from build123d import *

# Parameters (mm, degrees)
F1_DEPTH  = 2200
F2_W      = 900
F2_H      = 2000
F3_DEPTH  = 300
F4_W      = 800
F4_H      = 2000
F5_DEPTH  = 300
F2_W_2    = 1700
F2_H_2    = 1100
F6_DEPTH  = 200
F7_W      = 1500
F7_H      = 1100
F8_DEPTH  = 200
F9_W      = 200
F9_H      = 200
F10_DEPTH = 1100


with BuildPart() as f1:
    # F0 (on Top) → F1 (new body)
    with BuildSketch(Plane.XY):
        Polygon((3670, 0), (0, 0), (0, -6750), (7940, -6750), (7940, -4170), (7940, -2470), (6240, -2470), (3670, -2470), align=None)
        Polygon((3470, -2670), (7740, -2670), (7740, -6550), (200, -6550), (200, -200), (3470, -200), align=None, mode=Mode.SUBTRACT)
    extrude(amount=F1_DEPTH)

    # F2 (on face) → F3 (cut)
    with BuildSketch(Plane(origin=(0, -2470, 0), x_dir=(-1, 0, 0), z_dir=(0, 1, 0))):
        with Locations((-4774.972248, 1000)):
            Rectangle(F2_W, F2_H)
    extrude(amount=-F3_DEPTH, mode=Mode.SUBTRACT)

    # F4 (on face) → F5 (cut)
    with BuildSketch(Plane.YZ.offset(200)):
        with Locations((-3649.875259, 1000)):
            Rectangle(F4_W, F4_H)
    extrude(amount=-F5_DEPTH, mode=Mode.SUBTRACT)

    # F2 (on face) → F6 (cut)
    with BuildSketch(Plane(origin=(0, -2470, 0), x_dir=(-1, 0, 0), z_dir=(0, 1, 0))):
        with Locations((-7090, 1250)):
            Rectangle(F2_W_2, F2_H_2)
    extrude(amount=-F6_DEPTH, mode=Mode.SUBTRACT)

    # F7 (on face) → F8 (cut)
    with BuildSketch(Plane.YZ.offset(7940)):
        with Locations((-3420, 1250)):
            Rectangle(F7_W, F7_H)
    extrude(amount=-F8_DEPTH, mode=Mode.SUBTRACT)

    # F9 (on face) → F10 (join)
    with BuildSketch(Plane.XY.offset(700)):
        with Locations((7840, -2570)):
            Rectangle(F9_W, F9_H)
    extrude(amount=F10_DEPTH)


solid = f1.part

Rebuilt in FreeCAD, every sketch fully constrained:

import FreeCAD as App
import Part
import Sketcher

V = App.Vector
Q = App.Units.Quantity


def add_polygon(sketch, points):
    """Adds a closed chain of lines whose ends are joined by coincident constraints."""
    first, n = sketch.GeometryCount, len(points)
    for a, b in zip(points, points[1:] + points[:1]):
        sketch.addGeometry(Part.LineSegment(App.Vector(*a, 0), App.Vector(*b, 0)), False)
    for i in range(n):
        sketch.addConstraint(Sketcher.Constraint("Coincident", first + i, 2, first + (i + 1) % n, 1))

doc = App.newDocument("Part")
body = doc.addObject("PartDesign::Body", "Body")

sketch1 = body.newObject("Sketcher::SketchObject", "Sketch")
sketch1.AttachmentSupport = (doc.getObject("XY_Plane"), [""])
sketch1.MapMode = "FlatFace"
add_polygon(sketch1, [(3670, 0), (0, 0), (0, -6750), (7940, -6750), (7940, -2470), (3670, -2470)])
add_polygon(sketch1, [(3470, -200), (3470, -2670), (7740, -2670), (7740, -6550), (200, -6550), (200, -200)])
sketch1.addConstraint([
    Sketcher.Constraint("Horizontal", 0),
    Sketcher.Constraint("Vertical", 1),
    Sketcher.Constraint("Horizontal", 2),
    Sketcher.Constraint("Vertical", 3),
    Sketcher.Constraint("Horizontal", 4),
    Sketcher.Constraint("Vertical", 5),
    Sketcher.Constraint("Vertical", 6),
    Sketcher.Constraint("Horizontal", 7),
    Sketcher.Constraint("Vertical", 8),
    Sketcher.Constraint("Horizontal", 9),
    Sketcher.Constraint("Vertical", 10),
    Sketcher.Constraint("Horizontal", 11),
    Sketcher.Constraint("Coincident", 0, 2, -1, 1),
    Sketcher.Constraint("Equal", 4, 7),
    Sketcher.Constraint("Equal", 5, 6),
    Sketcher.Constraint("DistanceX", 0, 2, 0, 1, Q("3670 mm")),
    Sketcher.Constraint("DistanceX", 2, 1, 2, 2, Q("7940 mm")),
    Sketcher.Constraint("DistanceX", 9, 2, 9, 1, Q("7540 mm")),
    Sketcher.Constraint("DistanceY", 1, 2, 1, 1, Q("6750 mm")),
    Sketcher.Constraint("DistanceY", 3, 1, 3, 2, Q("4280 mm")),
    Sketcher.Constraint("DistanceY", 8, 2, 8, 1, Q("3880 mm")),
    Sketcher.Constraint("DistanceX", -1, 1, 6, 2, Q("3470 mm")),
    Sketcher.Constraint("DistanceY", 6, 2, -1, 1, Q("2670 mm")),
])
pad1 = body.newObject("PartDesign::Pad", "Pad")
pad1.Profile = sketch1
pad1.Length = 2200

sketch2 = body.newObject("Sketcher::SketchObject", "Sketch001")
sketch2.AttachmentSupport = (doc.getObject("XZ_Plane"), [""])
sketch2.MapMode = "FlatFace"
sketch2.AttachmentOffset = App.Placement(V(0, 0, 2470), App.Rotation())
add_polygon(sketch2, [(5225, 2000), (5225, 0), (4325, 0), (4325, 2000)])
sketch2.addConstraint([
    Sketcher.Constraint("Vertical", 0),
    Sketcher.Constraint("Horizontal", 1),
    Sketcher.Constraint("Vertical", 2),
    Sketcher.Constraint("Horizontal", 3),
    Sketcher.Constraint("PointOnObject", 0, 2, -1),
    Sketcher.Constraint("DistanceX", 1, 2, 1, 1, Q("900 mm")),
    Sketcher.Constraint("DistanceY", 0, 2, 0, 1, Q("2000 mm")),
    Sketcher.Constraint("DistanceX", -1, 1, 0, 2, Q("5224.972248 mm")),
])
pocket1 = body.newObject("PartDesign::Pocket", "Pocket")
pocket1.Profile = sketch2
pocket1.Length = 300
pocket1.Reversed = True

sketch3 = body.newObject("Sketcher::SketchObject", "Sketch002")
sketch3.AttachmentSupport = (doc.getObject("YZ_Plane"), [""])
sketch3.MapMode = "FlatFace"
sketch3.AttachmentOffset = App.Placement(V(0, 0, 200), App.Rotation())
add_polygon(sketch3, [(-4050, 2000), (-4050, 0), (-3250, 0), (-3250, 2000)])
sketch3.addConstraint([
    Sketcher.Constraint("Vertical", 0),
    Sketcher.Constraint("Horizontal", 1),
    Sketcher.Constraint("Vertical", 2),
    Sketcher.Constraint("Horizontal", 3),
    Sketcher.Constraint("PointOnObject", 0, 2, -1),
    Sketcher.Constraint("DistanceX", 1, 1, 1, 2, Q("800 mm")),
    Sketcher.Constraint("DistanceY", 0, 2, 0, 1, Q("2000 mm")),
    Sketcher.Constraint("DistanceX", 0, 2, -1, 1, Q("4049.875259 mm")),
])
pocket2 = body.newObject("PartDesign::Pocket", "Pocket001")
pocket2.Profile = sketch3
pocket2.Length = 300

sketch4 = body.newObject("Sketcher::SketchObject", "Sketch003")
sketch4.AttachmentSupport = (doc.getObject("XZ_Plane"), [""])
sketch4.MapMode = "FlatFace"
sketch4.AttachmentOffset = App.Placement(V(0, 0, 2470), App.Rotation())
add_polygon(sketch4, [(7940, 1800), (7940, 700), (6240, 700), (6240, 1800)])
sketch4.addConstraint([
    Sketcher.Constraint("Vertical", 0),
    Sketcher.Constraint("Horizontal", 1),
    Sketcher.Constraint("Vertical", 2),
    Sketcher.Constraint("Horizontal", 3),
    Sketcher.Constraint("DistanceX", 1, 2, 1, 1, Q("1700 mm")),
    Sketcher.Constraint("DistanceY", 0, 2, 0, 1, Q("1100 mm")),
    Sketcher.Constraint("DistanceX", -1, 1, 0, 2, Q("7940 mm")),
    Sketcher.Constraint("DistanceY", -1, 1, 0, 2, Q("700 mm")),
])
pocket3 = body.newObject("PartDesign::Pocket", "Pocket002")
pocket3.Profile = sketch4
pocket3.Length = 200
pocket3.Reversed = True

sketch5 = body.newObject("Sketcher::SketchObject", "Sketch004")
sketch5.AttachmentSupport = (doc.getObject("YZ_Plane"), [""])
sketch5.MapMode = "FlatFace"
sketch5.AttachmentOffset = App.Placement(V(0, 0, 7940), App.Rotation())
add_polygon(sketch5, [(-4170, 1800), (-4170, 700), (-2670, 700), (-2670, 1800)])
sketch5.addConstraint([
    Sketcher.Constraint("Vertical", 0),
    Sketcher.Constraint("Horizontal", 1),
    Sketcher.Constraint("Vertical", 2),
    Sketcher.Constraint("Horizontal", 3),
    Sketcher.Constraint("DistanceX", 1, 1, 1, 2, Q("1500 mm")),
    Sketcher.Constraint("DistanceY", 0, 2, 0, 1, Q("1100 mm")),
    Sketcher.Constraint("DistanceX", 0, 2, -1, 1, Q("4170 mm")),
    Sketcher.Constraint("DistanceY", -1, 1, 0, 2, Q("700 mm")),
])
pocket4 = body.newObject("PartDesign::Pocket", "Pocket003")
pocket4.Profile = sketch5
pocket4.Length = 200

sketch6 = body.newObject("Sketcher::SketchObject", "Sketch005")
sketch6.AttachmentSupport = (doc.getObject("XY_Plane"), [""])
sketch6.MapMode = "FlatFace"
sketch6.AttachmentOffset = App.Placement(V(0, 0, 700), App.Rotation())
add_polygon(sketch6, [(7740, -2470), (7740, -2670), (7940, -2670), (7940, -2470)])
sketch6.addConstraint([
    Sketcher.Constraint("Vertical", 0),
    Sketcher.Constraint("Horizontal", 1),
    Sketcher.Constraint("Vertical", 2),
    Sketcher.Constraint("Horizontal", 3),
    Sketcher.Constraint("Equal", 3, 0),
    Sketcher.Constraint("DistanceX", 1, 1, 1, 2, Q("200 mm")),
    Sketcher.Constraint("DistanceX", -1, 1, 0, 2, Q("7740 mm")),
    Sketcher.Constraint("DistanceY", 0, 2, -1, 1, Q("2670 mm")),
])
pad2 = body.newObject("PartDesign::Pad", "Pad001")
pad2.Profile = sketch6
pad2.Length = 1100

doc.recompute()
